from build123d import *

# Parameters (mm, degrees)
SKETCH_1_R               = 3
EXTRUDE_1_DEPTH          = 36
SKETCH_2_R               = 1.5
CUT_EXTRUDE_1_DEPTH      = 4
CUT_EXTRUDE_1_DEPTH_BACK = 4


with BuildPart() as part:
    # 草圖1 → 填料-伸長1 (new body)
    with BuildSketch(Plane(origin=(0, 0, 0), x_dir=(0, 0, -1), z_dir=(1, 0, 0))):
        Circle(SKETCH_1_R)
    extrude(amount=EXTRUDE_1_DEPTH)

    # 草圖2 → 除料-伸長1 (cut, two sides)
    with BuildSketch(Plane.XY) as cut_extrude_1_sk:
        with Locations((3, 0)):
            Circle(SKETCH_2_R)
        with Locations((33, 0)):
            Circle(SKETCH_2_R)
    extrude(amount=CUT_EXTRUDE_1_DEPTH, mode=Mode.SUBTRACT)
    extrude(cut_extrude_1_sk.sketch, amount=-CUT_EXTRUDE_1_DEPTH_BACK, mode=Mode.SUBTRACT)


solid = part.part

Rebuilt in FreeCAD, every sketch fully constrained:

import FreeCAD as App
import Part
import Sketcher
from FreeCAD import Vector
Q = App.Units.Quantity

doc = App.newDocument("Part")
body = doc.addObject("PartDesign::Body", "Body")

# Sketch on YZ plane
sketch1 = doc.addObject("Sketcher::SketchObject", "Sketch")
body.addObject(sketch1)
sketch1.AttachmentSupport = (doc.YZ_Plane, [""])
sketch1.MapMode = "FlatFace"
sketch1.addGeometry(Part.Circle(Vector(0, 0, 0), Vector(0, 0, 1), 3), False)
sketch1.addConstraint(Sketcher.Constraint("Coincident", 0, 3, -1, 1))
sketch1.addConstraint(Sketcher.Constraint("Diameter", 0, Q("6 mm")))
pad1 = doc.addObject("PartDesign::Pad", "Pad")
body.addObject(pad1)
pad1.Profile = sketch1
pad1.Length = 36

# Sketch on XY plane
sketch2 = doc.addObject("Sketcher::SketchObject", "Sketch001")
body.addObject(sketch2)
sketch2.AttachmentSupport = (doc.XY_Plane, [""])
sketch2.MapMode = "FlatFace"
sketch2.addGeometry(Part.Circle(Vector(3, 0, 0), Vector(0, 0, 1), 1.5), False)
sketch2.addGeometry(Part.Circle(Vector(33, 0, 0), Vector(0, 0, 1), 1.5), False)
sketch2.addConstraint(Sketcher.Constraint("Equal", 0, 1))
sketch2.addConstraint(Sketcher.Constraint("PointOnObject", 0, 3, -1))
sketch2.addConstraint(Sketcher.Constraint("PointOnObject", 1, 3, -1))
sketch2.addConstraint(Sketcher.Constraint("Diameter", 0, Q("3 mm")))
sketch2.addConstraint(Sketcher.Constraint("DistanceX", -1, 1, 0, 3, Q("3 mm")))
sketch2.addConstraint(Sketcher.Constraint("DistanceX", -1, 1, 1, 3, Q("33 mm")))
pocket1 = doc.addObject("PartDesign::Pocket", "Pocket")
body.addObject(pocket1)
pocket1.Profile = sketch2
pocket1.Type = "ThroughAll"
pocket1.Midplane = True

doc.recompute()
